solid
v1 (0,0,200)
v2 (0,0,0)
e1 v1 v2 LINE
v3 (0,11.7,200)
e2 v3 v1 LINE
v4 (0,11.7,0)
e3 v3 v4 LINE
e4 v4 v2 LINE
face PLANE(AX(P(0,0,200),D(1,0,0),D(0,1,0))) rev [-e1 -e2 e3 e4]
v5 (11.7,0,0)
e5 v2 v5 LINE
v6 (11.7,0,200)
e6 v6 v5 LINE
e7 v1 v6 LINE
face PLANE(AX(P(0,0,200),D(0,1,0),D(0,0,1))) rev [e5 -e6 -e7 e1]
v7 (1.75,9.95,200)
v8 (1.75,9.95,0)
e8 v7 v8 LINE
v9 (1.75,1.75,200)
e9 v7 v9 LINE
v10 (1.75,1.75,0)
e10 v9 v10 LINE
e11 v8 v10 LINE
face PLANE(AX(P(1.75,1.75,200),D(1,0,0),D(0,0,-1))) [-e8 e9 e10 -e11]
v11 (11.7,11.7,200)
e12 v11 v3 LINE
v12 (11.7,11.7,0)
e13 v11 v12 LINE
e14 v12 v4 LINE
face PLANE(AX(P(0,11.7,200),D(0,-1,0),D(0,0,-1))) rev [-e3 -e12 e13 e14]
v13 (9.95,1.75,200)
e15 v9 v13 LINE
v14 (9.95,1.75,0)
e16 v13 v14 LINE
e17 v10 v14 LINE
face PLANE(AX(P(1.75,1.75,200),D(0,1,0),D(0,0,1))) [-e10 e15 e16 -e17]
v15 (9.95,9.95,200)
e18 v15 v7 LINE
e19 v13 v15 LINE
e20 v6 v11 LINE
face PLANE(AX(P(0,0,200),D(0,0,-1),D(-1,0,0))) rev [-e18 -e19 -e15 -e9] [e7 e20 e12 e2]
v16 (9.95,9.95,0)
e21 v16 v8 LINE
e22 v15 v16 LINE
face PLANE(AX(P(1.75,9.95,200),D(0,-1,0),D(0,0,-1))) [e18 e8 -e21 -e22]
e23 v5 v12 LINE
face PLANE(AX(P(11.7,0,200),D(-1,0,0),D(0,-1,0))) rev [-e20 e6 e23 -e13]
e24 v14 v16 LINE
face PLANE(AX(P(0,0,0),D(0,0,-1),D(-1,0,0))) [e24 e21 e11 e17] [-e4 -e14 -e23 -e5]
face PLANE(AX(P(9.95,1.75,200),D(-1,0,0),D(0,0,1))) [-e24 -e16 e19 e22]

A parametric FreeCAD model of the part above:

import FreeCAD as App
import Part
import Sketcher

V = App.Vector

doc = App.newDocument("Part")
body = doc.addObject("PartDesign::Body", "Body")

sketch1 = body.newObject("Sketcher::SketchObject", "Sketch")
sketch1.AttachmentSupport = (doc.getObject("XY_Plane"), [""])
sketch1.MapMode = "FlatFace"
sketch1.addGeometry(Part.LineSegment(V(0, 12, 0), V(0, 0, 0)), False)
sketch1.addGeometry(Part.LineSegment(V(0, 0, 0), V(12, 0, 0)), False)
sketch1.addGeometry(Part.LineSegment(V(12, 0, 0), V(12, 12, 0)), False)
sketch1.addGeometry(Part.LineSegment(V(12, 12, 0), V(0, 12, 0)), False)
sketch1.addGeometry(Part.LineSegment(V(10, 2, 0), V(2, 2, 0)), False)
sketch1.addGeometry(Part.LineSegment(V(2, 2, 0), V(2, 10, 0)), False)
sketch1.addGeometry(Part.LineSegment(V(2, 10, 0), V(10, 10, 0)), False)
sketch1.addGeometry(Part.LineSegment(V(10, 10, 0), V(10, 2, 0)), False)
sketch1.addConstraint(Sketcher.Constraint("Coincident", 0, 2, 1, 1))
sketch1.addConstraint(Sketcher.Constraint("Coincident", 1, 2, 2, 1))
sketch1.addConstraint(Sketcher.Constraint("Coincident", 2, 2, 3, 1))
sketch1.addConstraint(Sketcher.Constraint("Coincident", 3, 2, 0, 1))
sketch1.addConstraint(Sketcher.Constraint("Coincident", 4, 2, 5, 1))
sketch1.addConstraint(Sketcher.Constraint("Coincident", 5, 2, 6, 1))
sketch1.addConstraint(Sketcher.Constraint("Coincident", 6, 2, 7, 1))
sketch1.addConstraint(Sketcher.Constraint("Coincident", 7, 2, 4, 1))
sketch1.addConstraint(Sketcher.Constraint("Vertical", 0))
sketch1.addConstraint(Sketcher.Constraint("Horizontal", 1))
sketch1.addConstraint(Sketcher.Constraint("Vertical", 2))
sketch1.addConstraint(Sketcher.Constraint("Horizontal", 3))
sketch1.addConstraint(Sketcher.Constraint("Horizontal", 4))
sketch1.addConstraint(Sketcher.Constraint("Vertical", 5))
sketch1.addConstraint(Sketcher.Constraint("Horizontal", 6))
sketch1.addConstraint(Sketcher.Constraint("Vertical", 7))
sketch1.addConstraint(Sketcher.Constraint("Coincident", 0, 2, -1, 1))
sketch1.addConstraint(Sketcher.Constraint("Equal", 3, 0))
sketch1.addConstraint(Sketcher.Constraint("Equal", 6, 5))
sketch1.addConstraint(Sketcher.Constraint("DistanceX", 1, 1, 1, 2, 11.7))
sketch1.addConstraint(Sketcher.Constraint("DistanceX", 4, 2, 4, 1, 8.2))
sketch1.addConstraint(Sketcher.Constraint("DistanceX", -1, 1, 4, 2, 1.75))
sketch1.addConstraint(Sketcher.Constraint("DistanceY", -1, 1, 4, 2, 1.75))
pad1 = body.newObject("PartDesign::Pad", "Pad")
pad1.Profile = sketch1
pad1.Length = 200

doc.recompute()
